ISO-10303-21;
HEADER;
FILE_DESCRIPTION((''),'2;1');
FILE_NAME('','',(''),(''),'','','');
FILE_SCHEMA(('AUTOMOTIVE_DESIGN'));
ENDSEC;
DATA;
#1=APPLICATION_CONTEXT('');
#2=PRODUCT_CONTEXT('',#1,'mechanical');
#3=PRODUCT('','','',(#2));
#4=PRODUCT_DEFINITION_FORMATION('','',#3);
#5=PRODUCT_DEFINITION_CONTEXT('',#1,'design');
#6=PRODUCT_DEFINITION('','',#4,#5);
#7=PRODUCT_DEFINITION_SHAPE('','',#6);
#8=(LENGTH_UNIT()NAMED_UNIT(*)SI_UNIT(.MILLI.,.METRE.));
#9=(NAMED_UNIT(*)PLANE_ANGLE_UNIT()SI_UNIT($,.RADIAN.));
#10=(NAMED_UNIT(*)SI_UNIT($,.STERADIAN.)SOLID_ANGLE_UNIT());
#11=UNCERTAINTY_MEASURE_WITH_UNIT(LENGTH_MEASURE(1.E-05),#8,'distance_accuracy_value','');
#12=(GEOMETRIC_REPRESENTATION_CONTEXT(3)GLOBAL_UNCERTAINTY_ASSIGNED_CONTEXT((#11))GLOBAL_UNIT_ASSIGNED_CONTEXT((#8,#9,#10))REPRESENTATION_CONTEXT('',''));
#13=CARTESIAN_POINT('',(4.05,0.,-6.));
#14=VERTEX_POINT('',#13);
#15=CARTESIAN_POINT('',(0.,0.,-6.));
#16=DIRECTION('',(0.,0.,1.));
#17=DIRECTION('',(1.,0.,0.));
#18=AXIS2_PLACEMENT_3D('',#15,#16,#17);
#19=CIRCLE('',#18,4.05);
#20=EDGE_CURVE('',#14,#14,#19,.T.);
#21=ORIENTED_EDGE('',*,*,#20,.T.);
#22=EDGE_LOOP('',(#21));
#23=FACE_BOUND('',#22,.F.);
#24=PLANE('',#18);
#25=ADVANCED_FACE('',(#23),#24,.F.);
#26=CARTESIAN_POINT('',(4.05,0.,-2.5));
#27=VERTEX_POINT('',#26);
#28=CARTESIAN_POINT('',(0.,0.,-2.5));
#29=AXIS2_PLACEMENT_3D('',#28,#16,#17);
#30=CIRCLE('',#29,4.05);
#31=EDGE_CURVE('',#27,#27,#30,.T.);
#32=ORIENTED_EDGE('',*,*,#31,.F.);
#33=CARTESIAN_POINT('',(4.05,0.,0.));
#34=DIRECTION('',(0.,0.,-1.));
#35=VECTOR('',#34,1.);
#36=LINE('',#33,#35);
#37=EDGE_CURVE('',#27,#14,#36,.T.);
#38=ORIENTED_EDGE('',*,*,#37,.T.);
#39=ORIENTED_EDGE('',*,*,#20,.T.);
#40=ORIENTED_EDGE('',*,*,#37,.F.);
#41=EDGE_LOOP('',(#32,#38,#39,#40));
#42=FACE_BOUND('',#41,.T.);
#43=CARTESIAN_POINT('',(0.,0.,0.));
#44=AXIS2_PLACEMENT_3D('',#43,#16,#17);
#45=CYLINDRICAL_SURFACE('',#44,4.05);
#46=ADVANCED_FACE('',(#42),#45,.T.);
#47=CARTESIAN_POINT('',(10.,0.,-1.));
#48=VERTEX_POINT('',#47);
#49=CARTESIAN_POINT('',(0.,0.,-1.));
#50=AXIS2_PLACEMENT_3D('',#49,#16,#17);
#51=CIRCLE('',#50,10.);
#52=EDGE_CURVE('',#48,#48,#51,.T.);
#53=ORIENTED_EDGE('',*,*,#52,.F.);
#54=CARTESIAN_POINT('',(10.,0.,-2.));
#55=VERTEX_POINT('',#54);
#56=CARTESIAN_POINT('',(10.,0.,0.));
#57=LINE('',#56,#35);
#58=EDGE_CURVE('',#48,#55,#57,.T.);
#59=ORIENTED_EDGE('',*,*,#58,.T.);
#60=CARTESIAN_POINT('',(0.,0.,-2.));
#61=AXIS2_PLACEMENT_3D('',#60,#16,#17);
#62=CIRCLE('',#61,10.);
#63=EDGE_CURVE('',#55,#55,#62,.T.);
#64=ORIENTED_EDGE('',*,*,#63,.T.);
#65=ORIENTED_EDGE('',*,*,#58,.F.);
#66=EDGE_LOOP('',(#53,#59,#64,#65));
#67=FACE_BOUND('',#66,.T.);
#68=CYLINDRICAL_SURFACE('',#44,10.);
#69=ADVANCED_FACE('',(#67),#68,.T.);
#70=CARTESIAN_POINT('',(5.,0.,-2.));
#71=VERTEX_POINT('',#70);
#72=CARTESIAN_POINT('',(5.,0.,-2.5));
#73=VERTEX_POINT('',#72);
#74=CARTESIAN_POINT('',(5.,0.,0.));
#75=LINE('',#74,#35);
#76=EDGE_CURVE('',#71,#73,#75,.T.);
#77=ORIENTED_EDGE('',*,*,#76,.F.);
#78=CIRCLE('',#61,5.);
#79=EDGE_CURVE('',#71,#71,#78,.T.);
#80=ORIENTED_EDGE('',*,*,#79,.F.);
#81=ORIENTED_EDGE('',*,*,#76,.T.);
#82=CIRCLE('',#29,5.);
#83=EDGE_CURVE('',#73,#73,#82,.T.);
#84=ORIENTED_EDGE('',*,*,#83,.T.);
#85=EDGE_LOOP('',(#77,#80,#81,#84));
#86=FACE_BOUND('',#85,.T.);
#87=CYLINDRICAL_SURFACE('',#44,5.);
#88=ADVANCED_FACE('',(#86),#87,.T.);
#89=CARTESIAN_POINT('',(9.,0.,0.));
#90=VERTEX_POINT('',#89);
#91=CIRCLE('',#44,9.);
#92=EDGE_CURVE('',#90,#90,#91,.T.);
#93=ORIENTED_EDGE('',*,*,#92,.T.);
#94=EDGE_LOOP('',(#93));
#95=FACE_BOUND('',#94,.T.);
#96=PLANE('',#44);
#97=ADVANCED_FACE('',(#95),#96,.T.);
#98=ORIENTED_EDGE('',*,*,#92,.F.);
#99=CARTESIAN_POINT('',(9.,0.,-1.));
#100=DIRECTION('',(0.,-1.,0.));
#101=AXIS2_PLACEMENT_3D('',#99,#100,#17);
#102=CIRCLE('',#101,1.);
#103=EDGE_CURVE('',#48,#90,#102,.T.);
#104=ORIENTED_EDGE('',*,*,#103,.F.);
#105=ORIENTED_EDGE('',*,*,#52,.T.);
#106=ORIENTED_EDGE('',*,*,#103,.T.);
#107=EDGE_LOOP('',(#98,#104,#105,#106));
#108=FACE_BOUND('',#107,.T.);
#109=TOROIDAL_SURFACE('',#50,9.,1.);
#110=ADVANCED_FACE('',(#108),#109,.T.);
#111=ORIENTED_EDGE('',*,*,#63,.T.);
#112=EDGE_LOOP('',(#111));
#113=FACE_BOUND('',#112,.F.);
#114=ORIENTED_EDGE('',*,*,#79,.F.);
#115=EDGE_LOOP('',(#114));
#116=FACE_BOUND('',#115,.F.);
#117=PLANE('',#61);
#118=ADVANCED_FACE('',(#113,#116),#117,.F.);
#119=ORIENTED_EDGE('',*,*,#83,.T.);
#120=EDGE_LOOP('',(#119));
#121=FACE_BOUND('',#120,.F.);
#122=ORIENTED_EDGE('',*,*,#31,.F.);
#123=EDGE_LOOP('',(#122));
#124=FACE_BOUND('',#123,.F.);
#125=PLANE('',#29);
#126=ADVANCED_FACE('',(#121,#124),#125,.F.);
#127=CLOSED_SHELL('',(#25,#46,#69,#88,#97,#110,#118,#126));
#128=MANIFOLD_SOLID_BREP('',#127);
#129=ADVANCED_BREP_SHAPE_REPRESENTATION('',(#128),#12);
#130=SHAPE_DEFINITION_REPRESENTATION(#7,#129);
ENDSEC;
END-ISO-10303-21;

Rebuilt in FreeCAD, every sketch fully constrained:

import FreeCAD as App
import Part
import Sketcher

V = App.Vector


def edges_at(feature, points):
    """Names of the edges that pass closest to the given points."""
    edges = feature.Shape.Edges
    near = lambda p: min(range(len(edges)), key=lambda i: edges[i].distToShape(Part.Vertex(*p))[0])
    return sorted({f"Edge{near(p) + 1}" for p in points})

doc = App.newDocument("Part")
body = doc.addObject("PartDesign::Body", "Body")

# Sketch on XY plane
sketch1 = doc.addObject("Sketcher::SketchObject", "Sketch")
body.addObject(sketch1)
sketch1.AttachmentSupport = (doc.XY_Plane, [""])
sketch1.MapMode = "FlatFace"
sketch1.addGeometry(Part.Circle(V(0, 0, 0), V(0, 0, 1), 4), False)
sketch1.addConstraint([
    Sketcher.Constraint("Coincident", 0, 3, -1, 1),
    Sketcher.Constraint("Diameter", 0, 8.1),
])
pad1 = doc.addObject("PartDesign::Pad", "Pad")
body.addObject(pad1)
pad1.Profile = sketch1
pad1.Length = 6
pad1.Reversed = True

# Sketch on XY plane
sketch2 = doc.addObject("Sketcher::SketchObject", "Sketch001")
body.addObject(sketch2)
sketch2.AttachmentSupport = (doc.XY_Plane, [""])
sketch2.MapMode = "FlatFace"
sketch2.addGeometry([
    Part.Circle(V(0, 0, 0), V(0, 0, 1), 5),
    Part.Circle(V(0, 0, 0), V(0, 0, 1), 4),
], False)
sketch2.addConstraint([
    Sketcher.Constraint("Coincident", 0, 3, -1, 1),
    Sketcher.Constraint("Coincident", 1, 3, -1, 1),
    Sketcher.Constraint("Diameter", 0, 10.0),
    Sketcher.Constraint("Diameter", 1, 8.1),
])
pad2 = doc.addObject("PartDesign::Pad", "Pad001")
body.addObject(pad2)
pad2.Profile = sketch2
pad2.Length = 2.5
pad2.Reversed = True

# Sketch on XY plane
sketch3 = doc.addObject("Sketcher::SketchObject", "Sketch002")
body.addObject(sketch3)
sketch3.AttachmentSupport = (doc.XY_Plane, [""])
sketch3.MapMode = "FlatFace"
sketch3.addGeometry([
    Part.Circle(V(0, 0, 0), V(0, 0, 1), 10),
    Part.Circle(V(0, 0, 0), V(0, 0, 1), 5),
], False)
sketch3.addConstraint([
    Sketcher.Constraint("Coincident", 0, 3, -1, 1),
    Sketcher.Constraint("Coincident", 1, 3, -1, 1),
    Sketcher.Constraint("Diameter", 0, 20.0),
    Sketcher.Constraint("Diameter", 1, 10.0),
])
pad3 = doc.addObject("PartDesign::Pad", "Pad002")
body.addObject(pad3)
pad3.Profile = sketch3
pad3.Length = 2
pad3.Reversed = True
doc.recompute()

fillet = doc.addObject("PartDesign::Fillet", "Fillet")
body.addObject(fillet)
fillet.Base = (pad3, edges_at(pad3, [(-10, 0, 0)]))
fillet.Radius = 1

doc.recompute()
